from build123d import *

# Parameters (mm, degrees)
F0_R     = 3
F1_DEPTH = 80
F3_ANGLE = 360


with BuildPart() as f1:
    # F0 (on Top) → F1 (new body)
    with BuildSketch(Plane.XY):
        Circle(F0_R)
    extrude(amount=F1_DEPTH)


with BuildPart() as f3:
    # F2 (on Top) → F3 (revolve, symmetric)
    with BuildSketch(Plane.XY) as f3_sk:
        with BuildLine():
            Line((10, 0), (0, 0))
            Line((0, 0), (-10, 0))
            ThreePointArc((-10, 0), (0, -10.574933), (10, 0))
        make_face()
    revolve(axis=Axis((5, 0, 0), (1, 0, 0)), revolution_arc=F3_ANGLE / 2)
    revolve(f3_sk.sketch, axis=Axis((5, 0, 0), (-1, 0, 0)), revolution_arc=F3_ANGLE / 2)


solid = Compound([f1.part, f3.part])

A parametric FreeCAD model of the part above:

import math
import FreeCAD as App
import Part
import Sketcher

doc = App.newDocument("Part")
params = doc.addObject("Spreadsheet::Sheet", "Params")
for row, (alias, value) in enumerate([
    ("sketch1_diameter", "6 mm"),
    ("pad1_length", "80 mm"),
    ("sketch2_width", "20 mm"),
    ("revolution_angle", "180 deg"),
    ("sketch3_width", "20 mm"),
    ("revolution2_angle", "180 deg"),
], start=1):
    params.set(f"A{row}", alias)
    params.set(f"B{row}", "=" + value)
    params.setAlias(f"B{row}", alias)

body = doc.addObject("PartDesign::Body", "Body")

# Sketch on XY plane
sketch1 = body.newObject("Sketcher::SketchObject", "Sketch")
sketch1.AttachmentSupport = (doc.getObject("XY_Plane"), [""])
sketch1.MapMode = "FlatFace"
sketch1.addGeometry(Part.Circle(App.Vector(0, 0, 0), App.Vector(0, 0, 1), 3), False)
sketch1.addConstraint(Sketcher.Constraint("Coincident", 0, 3, -1, 1))
sketch1.addConstraint(Sketcher.Constraint("Diameter", 0, 6.0))
sketch1.setExpression("Constraints[1]", "Params.sketch1_diameter")
pad1 = body.newObject("PartDesign::Pad", "Pad")
pad1.Profile = sketch1
pad1.setExpression("Length", "Params.pad1_length")
body2 = doc.addObject("PartDesign::Body", "Body001")

# Sketch on XY plane
sketch2 = body2.newObject("Sketcher::SketchObject", "Sketch001")
sketch2.AttachmentSupport = (doc.getObject("XY_Plane001"), [""])
sketch2.MapMode = "FlatFace"
sketch2.addGeometry(Part.LineSegment(App.Vector(10, 0, 0), App.Vector(-10, 0, 0)), False)
sketch2.addGeometry(Part.ArcOfCircle(Part.Circle(App.Vector(0, -0.559304, 0), App.Vector(0, 0, 1), 10.015629), math.radians(176.798759), math.radians(363.201241)), False)
sketch2.addConstraint(Sketcher.Constraint("Coincident", 0, 1, 1, 2))
sketch2.addConstraint(Sketcher.Constraint("Coincident", 1, 1, 0, 2))
sketch2.addConstraint(Sketcher.Constraint("Horizontal", 0))
sketch2.addConstraint(Sketcher.Constraint("Symmetric", 0, 1, 1, 1, -1, 1))
sketch2.addConstraint(Sketcher.Constraint("DistanceX", 0, 2, 0, 1, 20.0))
sketch2.addConstraint(Sketcher.Constraint("Radius", 1, 10.015629))
sketch2.setExpression("Constraints[4]", "Params.sketch2_width")
revolution = body2.newObject("PartDesign::Revolution", "Revolution")
revolution.Profile = sketch2
revolution.ReferenceAxis = (sketch2, ["H_Axis"])
revolution.setExpression("Angle", "Params.revolution_angle")

# Sketch on XY plane
sketch3 = body2.newObject("Sketcher::SketchObject", "Sketch002")
sketch3.AttachmentSupport = (doc.getObject("XY_Plane001"), [""])
sketch3.MapMode = "FlatFace"
sketch3.addGeometry(Part.LineSegment(App.Vector(10, 0, 0), App.Vector(-10, 0, 0)), False)
sketch3.addGeometry(Part.ArcOfCircle(Part.Circle(App.Vector(0, -0.559304, 0), App.Vector(0, 0, 1), 10.015629), math.radians(176.798759), math.radians(363.201241)), False)
sketch3.addConstraint(Sketcher.Constraint("Coincident", 0, 1, 1, 2))
sketch3.addConstraint(Sketcher.Constraint("Coincident", 1, 1, 0, 2))
sketch3.addConstraint(Sketcher.Constraint("Horizontal", 0))
sketch3.addConstraint(Sketcher.Constraint("Symmetric", 0, 1, 1, 1, -1, 1))
sketch3.addConstraint(Sketcher.Constraint("DistanceX", 0, 2, 0, 1, 20.0))
sketch3.addConstraint(Sketcher.Constraint("Radius", 1, 10.015629))
sketch3.setExpression("Constraints[4]", "Params.sketch3_width")
revolution2 = body2.newObject("PartDesign::Revolution", "Revolution001")
revolution2.Profile = sketch3
revolution2.ReferenceAxis = (sketch3, ["H_Axis"])
revolution2.setExpression("Angle", "Params.revolution2_angle")
revolution2.Reversed = True

doc.recompute()
